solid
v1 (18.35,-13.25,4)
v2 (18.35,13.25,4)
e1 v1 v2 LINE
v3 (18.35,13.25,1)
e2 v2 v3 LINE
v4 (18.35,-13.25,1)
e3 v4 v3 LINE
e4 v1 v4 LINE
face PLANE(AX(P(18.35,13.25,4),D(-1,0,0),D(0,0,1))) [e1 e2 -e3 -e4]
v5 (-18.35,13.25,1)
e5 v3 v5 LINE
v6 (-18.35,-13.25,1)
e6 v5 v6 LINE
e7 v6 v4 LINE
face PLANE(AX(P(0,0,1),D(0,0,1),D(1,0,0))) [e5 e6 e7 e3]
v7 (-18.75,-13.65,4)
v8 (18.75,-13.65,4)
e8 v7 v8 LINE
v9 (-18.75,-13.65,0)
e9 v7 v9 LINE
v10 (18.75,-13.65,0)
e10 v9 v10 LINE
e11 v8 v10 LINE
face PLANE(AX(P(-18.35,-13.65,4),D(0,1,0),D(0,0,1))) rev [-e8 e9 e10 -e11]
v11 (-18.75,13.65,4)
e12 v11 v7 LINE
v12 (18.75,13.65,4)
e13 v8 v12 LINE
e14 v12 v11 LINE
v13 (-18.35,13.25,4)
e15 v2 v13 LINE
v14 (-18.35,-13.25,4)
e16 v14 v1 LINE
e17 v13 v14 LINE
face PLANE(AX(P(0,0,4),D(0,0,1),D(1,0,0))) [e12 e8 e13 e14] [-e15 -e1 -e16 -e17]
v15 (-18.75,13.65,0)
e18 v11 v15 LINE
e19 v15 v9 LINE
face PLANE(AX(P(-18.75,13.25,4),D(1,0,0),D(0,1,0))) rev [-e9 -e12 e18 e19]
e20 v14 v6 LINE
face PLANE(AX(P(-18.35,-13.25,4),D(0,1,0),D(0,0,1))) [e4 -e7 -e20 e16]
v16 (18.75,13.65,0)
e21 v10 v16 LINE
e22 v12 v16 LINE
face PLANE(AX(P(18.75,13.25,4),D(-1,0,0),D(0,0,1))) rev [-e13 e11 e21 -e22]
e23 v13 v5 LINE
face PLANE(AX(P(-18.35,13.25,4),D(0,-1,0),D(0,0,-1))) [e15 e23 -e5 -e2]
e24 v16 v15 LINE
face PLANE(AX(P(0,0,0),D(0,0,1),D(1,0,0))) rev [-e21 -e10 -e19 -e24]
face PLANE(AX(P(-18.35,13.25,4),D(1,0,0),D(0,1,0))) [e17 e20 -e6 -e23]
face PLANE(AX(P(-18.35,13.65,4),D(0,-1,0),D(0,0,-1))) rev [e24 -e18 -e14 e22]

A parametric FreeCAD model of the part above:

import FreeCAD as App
import Part
import Sketcher

V = App.Vector

doc = App.newDocument("Part")
body = doc.addObject("PartDesign::Body", "Body")

sketch1 = doc.addObject("Sketcher::SketchObject", "Sketch")
body.addObject(sketch1)
sketch1.AttachmentSupport = (doc.XY_Plane, [""])
sketch1.MapMode = "FlatFace"
sketch1.addGeometry(Part.LineSegment(V(-18.35, 13.25, 0), V(-18.35, -13.25, 0)), False)
sketch1.addGeometry(Part.LineSegment(V(-18.35, -13.25, 0), V(18.35, -13.25, 0)), False)
sketch1.addGeometry(Part.LineSegment(V(18.35, -13.25, 0), V(18.35, 13.25, 0)), False)
sketch1.addGeometry(Part.LineSegment(V(18.35, 13.25, 0), V(-18.35, 13.25, 0)), False)
sketch1.addConstraint(Sketcher.Constraint("Coincident", 0, 2, 1, 1))
sketch1.addConstraint(Sketcher.Constraint("Coincident", 1, 2, 2, 1))
sketch1.addConstraint(Sketcher.Constraint("Coincident", 2, 2, 3, 1))
sketch1.addConstraint(Sketcher.Constraint("Coincident", 3, 2, 0, 1))
sketch1.addConstraint(Sketcher.Constraint("Vertical", 0))
sketch1.addConstraint(Sketcher.Constraint("Horizontal", 1))
sketch1.addConstraint(Sketcher.Constraint("Vertical", 2))
sketch1.addConstraint(Sketcher.Constraint("Horizontal", 3))
sketch1.addConstraint(Sketcher.Constraint("Symmetric", 0, 2, 2, 2, -1, 1))
sketch1.addConstraint(Sketcher.Constraint("DistanceX", 1, 1, 1, 2, 36.7))
sketch1.addConstraint(Sketcher.Constraint("DistanceY", 0, 2, 0, 1, 26.5))
pad1 = doc.addObject("PartDesign::Pad", "Pad")
body.addObject(pad1)
pad1.Profile = sketch1
pad1.Length = 1

sketch2 = doc.addObject("Sketcher::SketchObject", "Sketch001")
body.addObject(sketch2)
sketch2.AttachmentSupport = (doc.XY_Plane, [""])
sketch2.MapMode = "FlatFace"
sketch2.addGeometry(Part.LineSegment(V(-18.75, 13.65, 0), V(-18.75, -13.65, 0)), False)
sketch2.addGeometry(Part.LineSegment(V(-18.75, -13.65, 0), V(18.75, -13.65, 0)), False)
sketch2.addGeometry(Part.LineSegment(V(18.75, -13.65, 0), V(18.75, 13.65, 0)), False)
sketch2.addGeometry(Part.LineSegment(V(18.75, 13.65, 0), V(-18.75, 13.65, 0)), False)
sketch2.addGeometry(Part.LineSegment(V(18.35, -13.25, 0), V(-18.35, -13.25, 0)), False)
sketch2.addGeometry(Part.LineSegment(V(-18.35, -13.25, 0), V(-18.35, 13.25, 0)), False)
sketch2.addGeometry(Part.LineSegment(V(-18.35, 13.25, 0), V(18.35, 13.25, 0)), False)
sketch2.addGeometry(Part.LineSegment(V(18.35, 13.25, 0), V(18.35, -13.25, 0)), False)
sketch2.addConstraint(Sketcher.Constraint("Coincident", 0, 2, 1, 1))
sketch2.addConstraint(Sketcher.Constraint("Coincident", 1, 2, 2, 1))
sketch2.addConstraint(Sketcher.Constraint("Coincident", 2, 2, 3, 1))
sketch2.addConstraint(Sketcher.Constraint("Coincident", 3, 2, 0, 1))
sketch2.addConstraint(Sketcher.Constraint("Coincident", 4, 2, 5, 1))
sketch2.addConstraint(Sketcher.Constraint("Coincident", 5, 2, 6, 1))
sketch2.addConstraint(Sketcher.Constraint("Coincident", 6, 2, 7, 1))
sketch2.addConstraint(Sketcher.Constraint("Coincident", 7, 2, 4, 1))
sketch2.addConstraint(Sketcher.Constraint("Vertical", 0))
sketch2.addConstraint(Sketcher.Constraint("Horizontal", 1))
sketch2.addConstraint(Sketcher.Constraint("Vertical", 2))
sketch2.addConstraint(Sketcher.Constraint("Horizontal", 3))
sketch2.addConstraint(Sketcher.Constraint("Horizontal", 4))
sketch2.addConstraint(Sketcher.Constraint("Vertical", 5))
sketch2.addConstraint(Sketcher.Constraint("Horizontal", 6))
sketch2.addConstraint(Sketcher.Constraint("Vertical", 7))
sketch2.addConstraint(Sketcher.Constraint("Symmetric", 0, 2, 2, 2, -1, 1))
sketch2.addConstraint(Sketcher.Constraint("Symmetric", 4, 2, 6, 2, -1, 1))
sketch2.addConstraint(Sketcher.Constraint("DistanceX", 1, 1, 1, 2, 37.5))
sketch2.addConstraint(Sketcher.Constraint("DistanceX", 4, 2, 4, 1, 36.7))
sketch2.addConstraint(Sketcher.Constraint("DistanceY", 0, 2, 0, 1, 27.3))
sketch2.addConstraint(Sketcher.Constraint("DistanceY", 5, 1, 5, 2, 26.5))
pad2 = doc.addObject("PartDesign::Pad", "Pad001")
body.addObject(pad2)
pad2.Profile = sketch2
pad2.Length = 4

doc.recompute()
